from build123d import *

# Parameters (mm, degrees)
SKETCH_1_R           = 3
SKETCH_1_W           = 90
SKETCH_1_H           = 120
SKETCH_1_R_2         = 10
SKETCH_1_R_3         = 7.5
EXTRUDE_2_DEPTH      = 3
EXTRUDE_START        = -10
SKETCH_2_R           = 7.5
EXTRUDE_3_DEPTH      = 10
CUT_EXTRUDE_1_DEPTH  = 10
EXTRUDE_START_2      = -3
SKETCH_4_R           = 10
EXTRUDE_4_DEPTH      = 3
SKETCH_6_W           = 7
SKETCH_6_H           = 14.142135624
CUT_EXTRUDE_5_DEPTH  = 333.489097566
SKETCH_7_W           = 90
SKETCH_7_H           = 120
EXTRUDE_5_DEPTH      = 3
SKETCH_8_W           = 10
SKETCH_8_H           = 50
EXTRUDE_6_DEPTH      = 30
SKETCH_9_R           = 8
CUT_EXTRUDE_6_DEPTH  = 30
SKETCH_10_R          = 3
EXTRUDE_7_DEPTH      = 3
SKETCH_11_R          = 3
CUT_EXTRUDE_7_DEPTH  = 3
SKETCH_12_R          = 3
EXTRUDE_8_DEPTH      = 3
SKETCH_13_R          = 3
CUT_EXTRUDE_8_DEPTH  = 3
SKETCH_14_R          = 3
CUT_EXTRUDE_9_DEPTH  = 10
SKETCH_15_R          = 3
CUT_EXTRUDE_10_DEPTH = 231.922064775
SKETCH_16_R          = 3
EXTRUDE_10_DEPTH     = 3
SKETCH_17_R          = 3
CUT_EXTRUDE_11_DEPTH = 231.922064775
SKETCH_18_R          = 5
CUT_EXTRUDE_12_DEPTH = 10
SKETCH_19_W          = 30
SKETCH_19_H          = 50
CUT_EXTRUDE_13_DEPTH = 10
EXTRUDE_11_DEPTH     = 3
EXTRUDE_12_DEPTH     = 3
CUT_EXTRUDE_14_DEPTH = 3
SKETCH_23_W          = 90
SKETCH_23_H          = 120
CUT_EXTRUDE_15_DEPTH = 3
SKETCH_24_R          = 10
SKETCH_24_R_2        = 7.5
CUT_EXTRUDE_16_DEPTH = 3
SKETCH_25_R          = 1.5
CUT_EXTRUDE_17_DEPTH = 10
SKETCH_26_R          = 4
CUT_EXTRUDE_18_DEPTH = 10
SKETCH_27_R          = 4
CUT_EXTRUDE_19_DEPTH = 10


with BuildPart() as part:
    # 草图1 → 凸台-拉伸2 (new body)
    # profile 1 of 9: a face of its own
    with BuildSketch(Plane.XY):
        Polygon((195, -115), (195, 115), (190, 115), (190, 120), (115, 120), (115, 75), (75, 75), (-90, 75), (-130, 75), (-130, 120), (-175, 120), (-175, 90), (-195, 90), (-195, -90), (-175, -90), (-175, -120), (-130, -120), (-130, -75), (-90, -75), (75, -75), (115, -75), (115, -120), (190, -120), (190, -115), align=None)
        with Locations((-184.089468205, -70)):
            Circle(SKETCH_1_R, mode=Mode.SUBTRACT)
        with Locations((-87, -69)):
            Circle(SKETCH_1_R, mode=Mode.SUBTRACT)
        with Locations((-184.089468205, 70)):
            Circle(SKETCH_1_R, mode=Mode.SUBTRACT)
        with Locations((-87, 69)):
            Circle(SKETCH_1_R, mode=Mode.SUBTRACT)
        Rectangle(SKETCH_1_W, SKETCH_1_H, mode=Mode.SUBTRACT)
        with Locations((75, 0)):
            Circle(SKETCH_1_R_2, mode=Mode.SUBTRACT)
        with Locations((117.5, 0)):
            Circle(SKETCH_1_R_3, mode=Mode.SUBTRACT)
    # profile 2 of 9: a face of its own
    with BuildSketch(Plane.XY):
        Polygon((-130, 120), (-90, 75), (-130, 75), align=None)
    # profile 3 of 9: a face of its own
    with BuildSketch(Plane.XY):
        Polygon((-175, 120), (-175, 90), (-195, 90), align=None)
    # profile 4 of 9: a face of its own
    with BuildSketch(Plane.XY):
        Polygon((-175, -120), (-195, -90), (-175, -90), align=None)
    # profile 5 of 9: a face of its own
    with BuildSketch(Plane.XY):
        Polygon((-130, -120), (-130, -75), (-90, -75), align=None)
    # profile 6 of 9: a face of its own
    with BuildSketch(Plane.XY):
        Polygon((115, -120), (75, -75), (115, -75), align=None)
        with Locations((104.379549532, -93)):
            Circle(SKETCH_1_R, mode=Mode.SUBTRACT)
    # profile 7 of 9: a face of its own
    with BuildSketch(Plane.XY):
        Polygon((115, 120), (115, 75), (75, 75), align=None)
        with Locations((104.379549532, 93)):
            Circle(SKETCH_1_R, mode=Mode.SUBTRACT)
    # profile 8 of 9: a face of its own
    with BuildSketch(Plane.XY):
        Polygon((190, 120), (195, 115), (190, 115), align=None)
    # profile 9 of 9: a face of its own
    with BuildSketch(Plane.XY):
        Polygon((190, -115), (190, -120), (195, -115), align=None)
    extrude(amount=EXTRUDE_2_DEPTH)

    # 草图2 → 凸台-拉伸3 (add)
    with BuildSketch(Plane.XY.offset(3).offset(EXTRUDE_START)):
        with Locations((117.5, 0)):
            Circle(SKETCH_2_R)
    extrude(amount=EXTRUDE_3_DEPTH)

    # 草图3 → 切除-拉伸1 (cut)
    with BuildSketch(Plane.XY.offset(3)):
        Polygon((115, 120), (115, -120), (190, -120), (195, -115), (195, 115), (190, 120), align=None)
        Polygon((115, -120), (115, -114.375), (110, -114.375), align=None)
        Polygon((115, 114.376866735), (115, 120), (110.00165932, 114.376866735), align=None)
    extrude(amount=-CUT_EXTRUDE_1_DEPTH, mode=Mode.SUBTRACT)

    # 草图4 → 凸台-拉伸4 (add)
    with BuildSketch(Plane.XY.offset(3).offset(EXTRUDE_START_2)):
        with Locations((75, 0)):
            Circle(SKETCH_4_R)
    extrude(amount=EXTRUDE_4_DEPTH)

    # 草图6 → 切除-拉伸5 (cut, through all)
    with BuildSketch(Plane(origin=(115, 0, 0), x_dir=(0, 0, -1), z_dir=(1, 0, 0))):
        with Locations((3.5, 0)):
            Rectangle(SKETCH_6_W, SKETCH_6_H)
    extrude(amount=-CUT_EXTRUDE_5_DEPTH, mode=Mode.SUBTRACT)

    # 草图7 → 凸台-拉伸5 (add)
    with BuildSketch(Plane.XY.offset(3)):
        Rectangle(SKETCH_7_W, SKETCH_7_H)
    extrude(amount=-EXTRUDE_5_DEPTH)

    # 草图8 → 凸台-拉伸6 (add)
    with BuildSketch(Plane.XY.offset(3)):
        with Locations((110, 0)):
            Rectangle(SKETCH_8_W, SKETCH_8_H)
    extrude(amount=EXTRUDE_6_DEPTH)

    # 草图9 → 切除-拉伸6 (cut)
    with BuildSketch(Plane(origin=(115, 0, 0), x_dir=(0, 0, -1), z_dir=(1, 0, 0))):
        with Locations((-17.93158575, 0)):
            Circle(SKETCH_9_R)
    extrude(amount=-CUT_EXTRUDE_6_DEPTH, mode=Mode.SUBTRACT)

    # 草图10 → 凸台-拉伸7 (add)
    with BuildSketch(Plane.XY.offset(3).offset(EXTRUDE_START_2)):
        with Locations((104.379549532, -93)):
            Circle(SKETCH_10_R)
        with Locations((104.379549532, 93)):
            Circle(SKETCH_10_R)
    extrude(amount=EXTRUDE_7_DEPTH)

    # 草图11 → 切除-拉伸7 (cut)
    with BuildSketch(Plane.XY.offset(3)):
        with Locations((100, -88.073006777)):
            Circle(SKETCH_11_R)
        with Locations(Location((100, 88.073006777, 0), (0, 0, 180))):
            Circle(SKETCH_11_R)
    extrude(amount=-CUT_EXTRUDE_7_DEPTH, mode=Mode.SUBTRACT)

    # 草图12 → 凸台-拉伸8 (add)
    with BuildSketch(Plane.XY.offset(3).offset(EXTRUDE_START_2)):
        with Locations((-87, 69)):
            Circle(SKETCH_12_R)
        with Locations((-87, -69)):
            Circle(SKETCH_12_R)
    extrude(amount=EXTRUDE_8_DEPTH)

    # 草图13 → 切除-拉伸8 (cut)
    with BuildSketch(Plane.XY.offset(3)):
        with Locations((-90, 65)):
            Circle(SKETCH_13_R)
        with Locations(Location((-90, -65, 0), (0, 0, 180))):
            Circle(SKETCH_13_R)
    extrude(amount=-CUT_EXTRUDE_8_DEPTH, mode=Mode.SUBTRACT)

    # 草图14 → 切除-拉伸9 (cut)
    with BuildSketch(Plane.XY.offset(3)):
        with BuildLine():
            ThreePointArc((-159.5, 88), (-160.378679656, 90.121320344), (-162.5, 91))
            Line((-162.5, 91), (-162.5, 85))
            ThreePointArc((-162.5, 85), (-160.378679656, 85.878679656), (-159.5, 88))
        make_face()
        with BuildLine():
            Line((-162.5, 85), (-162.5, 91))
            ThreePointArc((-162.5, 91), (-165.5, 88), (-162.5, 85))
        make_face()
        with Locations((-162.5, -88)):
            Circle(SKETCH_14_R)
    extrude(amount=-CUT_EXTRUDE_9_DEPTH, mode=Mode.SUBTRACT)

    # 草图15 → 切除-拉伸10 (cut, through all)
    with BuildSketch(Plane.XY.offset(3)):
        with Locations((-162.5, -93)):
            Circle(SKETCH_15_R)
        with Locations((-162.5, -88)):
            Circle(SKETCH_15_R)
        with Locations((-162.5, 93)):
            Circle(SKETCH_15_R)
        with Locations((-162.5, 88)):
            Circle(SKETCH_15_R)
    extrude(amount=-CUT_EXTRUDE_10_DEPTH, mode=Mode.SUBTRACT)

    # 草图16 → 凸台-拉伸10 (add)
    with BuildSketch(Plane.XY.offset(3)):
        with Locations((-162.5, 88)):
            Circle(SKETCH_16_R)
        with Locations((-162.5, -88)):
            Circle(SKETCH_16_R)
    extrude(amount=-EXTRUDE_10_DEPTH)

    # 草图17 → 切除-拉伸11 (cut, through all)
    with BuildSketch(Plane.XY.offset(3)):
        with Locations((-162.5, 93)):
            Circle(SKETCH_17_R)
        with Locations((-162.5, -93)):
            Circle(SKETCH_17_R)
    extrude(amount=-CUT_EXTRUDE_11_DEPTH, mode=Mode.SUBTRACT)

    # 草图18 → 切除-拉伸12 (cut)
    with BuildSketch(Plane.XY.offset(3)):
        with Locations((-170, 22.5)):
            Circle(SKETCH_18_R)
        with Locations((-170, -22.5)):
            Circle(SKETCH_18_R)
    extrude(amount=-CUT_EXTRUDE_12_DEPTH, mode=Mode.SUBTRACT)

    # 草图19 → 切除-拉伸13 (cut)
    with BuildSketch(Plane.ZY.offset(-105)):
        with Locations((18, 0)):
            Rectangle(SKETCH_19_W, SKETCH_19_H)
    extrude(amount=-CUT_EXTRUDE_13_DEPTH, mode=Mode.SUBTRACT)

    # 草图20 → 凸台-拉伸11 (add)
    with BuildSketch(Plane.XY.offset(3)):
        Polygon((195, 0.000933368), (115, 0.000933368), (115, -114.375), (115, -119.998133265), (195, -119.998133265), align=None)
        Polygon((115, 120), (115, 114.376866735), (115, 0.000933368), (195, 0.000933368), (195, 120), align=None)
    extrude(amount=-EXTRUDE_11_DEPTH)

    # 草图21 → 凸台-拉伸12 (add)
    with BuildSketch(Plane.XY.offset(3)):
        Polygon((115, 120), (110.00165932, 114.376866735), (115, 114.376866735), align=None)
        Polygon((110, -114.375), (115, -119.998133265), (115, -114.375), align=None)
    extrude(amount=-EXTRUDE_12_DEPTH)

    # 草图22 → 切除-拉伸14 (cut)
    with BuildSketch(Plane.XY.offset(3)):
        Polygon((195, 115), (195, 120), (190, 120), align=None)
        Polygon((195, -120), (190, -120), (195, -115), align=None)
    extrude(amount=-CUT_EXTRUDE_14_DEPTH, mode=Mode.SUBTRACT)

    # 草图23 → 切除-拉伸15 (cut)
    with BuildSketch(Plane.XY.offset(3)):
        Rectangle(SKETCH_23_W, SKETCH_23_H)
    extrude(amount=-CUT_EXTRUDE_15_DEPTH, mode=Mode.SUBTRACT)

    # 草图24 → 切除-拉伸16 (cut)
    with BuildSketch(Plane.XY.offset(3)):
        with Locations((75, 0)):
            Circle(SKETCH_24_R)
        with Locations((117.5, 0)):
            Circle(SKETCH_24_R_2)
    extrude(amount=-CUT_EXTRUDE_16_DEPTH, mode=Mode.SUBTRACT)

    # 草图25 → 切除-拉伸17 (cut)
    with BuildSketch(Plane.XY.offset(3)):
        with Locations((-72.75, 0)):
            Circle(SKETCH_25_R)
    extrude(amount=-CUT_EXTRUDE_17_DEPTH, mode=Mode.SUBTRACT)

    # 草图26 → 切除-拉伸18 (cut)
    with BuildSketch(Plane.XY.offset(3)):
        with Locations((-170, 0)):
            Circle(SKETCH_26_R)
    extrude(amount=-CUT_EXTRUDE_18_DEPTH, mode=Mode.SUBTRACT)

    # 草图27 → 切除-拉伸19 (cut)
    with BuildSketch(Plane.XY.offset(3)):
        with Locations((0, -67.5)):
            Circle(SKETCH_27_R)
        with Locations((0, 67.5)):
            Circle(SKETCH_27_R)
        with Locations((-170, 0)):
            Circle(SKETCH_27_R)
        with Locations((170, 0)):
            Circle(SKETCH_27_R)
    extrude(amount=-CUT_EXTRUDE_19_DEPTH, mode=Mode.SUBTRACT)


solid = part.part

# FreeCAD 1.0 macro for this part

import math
import FreeCAD as App
import Part
import Sketcher
from FreeCAD import Vector
Q = App.Units.Quantity

doc = App.newDocument("Part")
body = doc.addObject("PartDesign::Body", "Body")

# Sketch on XY plane
sketch1 = doc.addObject("Sketcher::SketchObject", "Sketch")
body.addObject(sketch1)
sketch1.AttachmentSupport = (doc.XY_Plane, [""])
sketch1.MapMode = "FlatFace"
sketch1.addGeometry([
    Part.LineSegment(Vector(195, -115, 0), Vector(195, 115, 0)),  # 0
    Part.LineSegment(Vector(195, 115, 0), Vector(190, 120, 0)),  # 1
    Part.LineSegment(Vector(190, 120, 0), Vector(115, 120, 0)),  # 2
    Part.LineSegment(Vector(115, 120, 0), Vector(75, 75, 0)),  # 3
    Part.LineSegment(Vector(75, 75, 0), Vector(-90, 75, 0)),  # 4
    Part.LineSegment(Vector(-90, 75, 0), Vector(-130, 120, 0)),  # 5
    Part.LineSegment(Vector(-130, 120, 0), Vector(-175, 120, 0)),  # 6
    Part.LineSegment(Vector(-175, 120, 0), Vector(-195, 90, 0)),  # 7
    Part.LineSegment(Vector(-195, 90, 0), Vector(-195, -90, 0)),  # 8
    Part.LineSegment(Vector(-195, -90, 0), Vector(-175, -120, 0)),  # 9
    Part.LineSegment(Vector(-175, -120, 0), Vector(-130, -120, 0)),  # 10
    Part.LineSegment(Vector(-130, -120, 0), Vector(-90, -75, 0)),  # 11
    Part.LineSegment(Vector(-90, -75, 0), Vector(75, -75, 0)),  # 12
    Part.LineSegment(Vector(75, -75, 0), Vector(115, -120, 0)),  # 13
    Part.LineSegment(Vector(115, -120, 0), Vector(190, -120, 0)),  # 14
    Part.LineSegment(Vector(190, -120, 0), Vector(195, -115, 0)),  # 15
    Part.Circle(Vector(-184.089468, -70, 0), Vector(0, 0, 1), 3),  # 16
    Part.Circle(Vector(-87, -69, 0), Vector(0, 0, 1), 3),  # 17
    Part.Circle(Vector(-184.089468, 70, 0), Vector(0, 0, 1), 3),  # 18
    Part.Circle(Vector(-87, 69, 0), Vector(0, 0, 1), 3),  # 19
    Part.LineSegment(Vector(45, -60, 0), Vector(-45, -60, 0)),  # 20
    Part.LineSegment(Vector(-45, -60, 0), Vector(-45, 60, 0)),  # 21
    Part.LineSegment(Vector(-45, 60, 0), Vector(45, 60, 0)),  # 22
    Part.LineSegment(Vector(45, 60, 0), Vector(45, -60, 0)),  # 23
    Part.Circle(Vector(75, 0, 0), Vector(0, 0, 1), 10),  # 24
    Part.Circle(Vector(117.5, 0, 0), Vector(0, 0, 1), 7.5),  # 25
    Part.Circle(Vector(104.37955, -93, 0), Vector(0, 0, 1), 3),  # 26
    Part.Circle(Vector(104.37955, 93, 0), Vector(0, 0, 1), 3),  # 27
], False)
sketch1.addConstraint([
    Sketcher.Constraint("Coincident", 0, 2, 1, 1),
    Sketcher.Constraint("Coincident", 1, 2, 2, 1),
    Sketcher.Constraint("Coincident", 2, 2, 3, 1),
    Sketcher.Constraint("Coincident", 3, 2, 4, 1),
    Sketcher.Constraint("Coincident", 4, 2, 5, 1),
    Sketcher.Constraint("Coincident", 5, 2, 6, 1),
    Sketcher.Constraint("Coincident", 6, 2, 7, 1),
    Sketcher.Constraint("Coincident", 7, 2, 8, 1),
    Sketcher.Constraint("Coincident", 8, 2, 9, 1),
    Sketcher.Constraint("Coincident", 9, 2, 10, 1),
    Sketcher.Constraint("Coincident", 10, 2, 11, 1),
    Sketcher.Constraint("Coincident", 11, 2, 12, 1),
    Sketcher.Constraint("Coincident", 12, 2, 13, 1),
    Sketcher.Constraint("Coincident", 13, 2, 14, 1),
    Sketcher.Constraint("Coincident", 14, 2, 15, 1),
    Sketcher.Constraint("Coincident", 15, 2, 0, 1),
    Sketcher.Constraint("Coincident", 20, 2, 21, 1),
    Sketcher.Constraint("Coincident", 21, 2, 22, 1),
    Sketcher.Constraint("Coincident", 22, 2, 23, 1),
    Sketcher.Constraint("Coincident", 23, 2, 20, 1),
    Sketcher.Constraint("Vertical", 0),
    Sketcher.Constraint("Horizontal", 2),
    Sketcher.Constraint("Horizontal", 4),
    Sketcher.Constraint("Horizontal", 6),
    Sketcher.Constraint("Vertical", 8),
    Sketcher.Constraint("Horizontal", 10),
    Sketcher.Constraint("Horizontal", 12),
    Sketcher.Constraint("Horizontal", 14),
    Sketcher.Constraint("Horizontal", 20),
    Sketcher.Constraint("Vertical", 21),
    Sketcher.Constraint("Horizontal", 22),
    Sketcher.Constraint("Vertical", 23),
    Sketcher.Constraint("Equal", 16, 17),
    Sketcher.Constraint("Equal", 17, 18),
    Sketcher.Constraint("Equal", 18, 19),
    Sketcher.Constraint("Equal", 19, 26),
    Sketcher.Constraint("Equal", 26, 27),
    Sketcher.Constraint("Symmetric", 20, 2, 22, 2, -1, 1),
    Sketcher.Constraint("Symmetric", 16, 3, 18, 3, -1),
    Sketcher.Constraint("Symmetric", 17, 3, 19, 3, -1),
    Sketcher.Constraint("Symmetric", 26, 3, 27, 3, -1),
    Sketcher.Constraint("Symmetric", 6, 2, 9, 2, -1),
    Sketcher.Constraint("Symmetric", 4, 2, 11, 2, -1),
    Sketcher.Constraint("Symmetric", 2, 2, 13, 2, -1),
    Sketcher.Constraint("PointOnObject", 24, 3, -1),
    Sketcher.Constraint("PointOnObject", 25, 3, -1),
    Sketcher.Constraint("Parallel", 3, 11),
    Sketcher.Constraint("Parallel", 5, 13),
    Sketcher.Constraint("Perpendicular", 1, 15),
    Sketcher.Constraint("Horizontal", 2, 2, 5, 2),
    Sketcher.Constraint("Vertical", 24, 3, 3, 2),
    Sketcher.Constraint("Vertical", 5, 2, 10, 2),
    Sketcher.Constraint("Vertical", 1, 2, 14, 2),
    Sketcher.Constraint("Equal", 7, 9),
    Sketcher.Constraint("Equal", 1, 15),
    Sketcher.Constraint("Diameter", 16, Q("6 mm")),
    Sketcher.Constraint("Diameter", 24, Q("20 mm")),
    Sketcher.Constraint("Diameter", 25, Q("15 mm")),
    Sketcher.Constraint("DistanceX", 2, 2, 2, 1, Q("75 mm")),
    Sketcher.Constraint("DistanceX", 4, 2, 4, 1, Q("165 mm")),
    Sketcher.Constraint("DistanceX", 6, 2, 6, 1, Q("45 mm")),
    Sketcher.Constraint("DistanceX", 20, 2, 20, 1, Q("90 mm")),
    Sketcher.Constraint("DistanceY", 0, 1, 0, 2, Q("230 mm")),
    Sketcher.Constraint("DistanceY", 8, 2, 8, 1, Q("180 mm")),
    Sketcher.Constraint("DistanceY", 21, 1, 21, 2, Q("120 mm")),
    Sketcher.Constraint("DistanceY", 16, 3, -1, 1, Q("70 mm")),
    Sketcher.Constraint("DistanceX", 17, 3, -1, 1, Q("87 mm")),
    Sketcher.Constraint("DistanceY", 17, 3, -1, 1, Q("69 mm")),
    Sketcher.Constraint("DistanceX", -1, 1, 24, 3, Q("75 mm")),
    Sketcher.Constraint("DistanceY", 26, 3, -1, 1, Q("93 mm")),
    Sketcher.Constraint("DistanceX", -1, 1, 0, 2, Q("195 mm")),
    Sketcher.Constraint("DistanceX", -1, 1, 1, 2, Q("190 mm")),
    Sketcher.Constraint("DistanceY", -1, 1, 3, 2, Q("75 mm")),
    Sketcher.Constraint("DistanceX", 7, 2, -1, 1, Q("195 mm")),
    Sketcher.Constraint("DistanceX", -1, 1, 25, 3, Q("117.5 mm")),
    Sketcher.Constraint("DistanceX", 16, 3, -1, 1, Q("184.089468 mm")),
    Sketcher.Constraint("DistanceX", -1, 1, 26, 3, Q("104.37955 mm")),
])
pad1 = doc.addObject("PartDesign::Pad", "Pad")
body.addObject(pad1)
pad1.Profile = sketch1
pad1.Length = 3

# Sketch on XY plane
sketch2 = doc.addObject("Sketcher::SketchObject", "Sketch001")
body.addObject(sketch2)
sketch2.AttachmentSupport = (doc.XY_Plane, [""])
sketch2.MapMode = "FlatFace"
sketch2.AttachmentOffset = App.Placement(Vector(0, 0, -7), App.Rotation())
sketch2.addGeometry(Part.Circle(Vector(117.5, 0, 0), Vector(0, 0, 1), 7.5), False)
sketch2.addConstraint([
    Sketcher.Constraint("PointOnObject", 0, 3, -1),
    Sketcher.Constraint("Diameter", 0, Q("15 mm")),
    Sketcher.Constraint("DistanceX", -1, 1, 0, 3, Q("117.5 mm")),
])
pad2 = doc.addObject("PartDesign::Pad", "Pad001")
body.addObject(pad2)
pad2.Profile = sketch2
pad2.Length = 10

# Sketch on XY plane
sketch3 = doc.addObject("Sketcher::SketchObject", "Sketch002")
body.addObject(sketch3)
sketch3.AttachmentSupport = (doc.XY_Plane, [""])
sketch3.MapMode = "FlatFace"
sketch3.AttachmentOffset = App.Placement(Vector(0, 0, 3), App.Rotation())
sketch3.addGeometry([
    Part.LineSegment(Vector(115, 114.376867, 0), Vector(115, -114.375, 0)),  # 0
    Part.LineSegment(Vector(115, -114.375, 0), Vector(110, -114.375, 0)),  # 1
    Part.LineSegment(Vector(110, -114.375, 0), Vector(115, -120, 0)),  # 2
    Part.LineSegment(Vector(115, -120, 0), Vector(190, -120, 0)),  # 3
    Part.LineSegment(Vector(190, -120, 0), Vector(195, -115, 0)),  # 4
    Part.LineSegment(Vector(195, -115, 0), Vector(195, 115, 0)),  # 5
    Part.LineSegment(Vector(195, 115, 0), Vector(190, 120, 0)),  # 6
    Part.LineSegment(Vector(190, 120, 0), Vector(115, 120, 0)),  # 7
    Part.LineSegment(Vector(115, 120, 0), Vector(110.001659, 114.376867, 0)),  # 8
    Part.LineSegment(Vector(110.001659, 114.376867, 0), Vector(115, 114.376867, 0)),  # 9
], False)
sketch3.addConstraint([
    Sketcher.Constraint("Coincident", 0, 2, 1, 1),
    Sketcher.Constraint("Coincident", 1, 2, 2, 1),
    Sketcher.Constraint("Coincident", 2, 2, 3, 1),
    Sketcher.Constraint("Coincident", 3, 2, 4, 1),
    Sketcher.Constraint("Coincident", 4, 2, 5, 1),
    Sketcher.Constraint("Coincident", 5, 2, 6, 1),
    Sketcher.Constraint("Coincident", 6, 2, 7, 1),
    Sketcher.Constraint("Coincident", 7, 2, 8, 1),
    Sketcher.Constraint("Coincident", 8, 2, 9, 1),
    Sketcher.Constraint("Coincident", 9, 2, 0, 1),
    Sketcher.Constraint("Vertical", 0),
    Sketcher.Constraint("Horizontal", 1),
    Sketcher.Constraint("Horizontal", 3),
    Sketcher.Constraint("Vertical", 5),
    Sketcher.Constraint("Horizontal", 7),
    Sketcher.Constraint("Horizontal", 9),
    Sketcher.Constraint("Symmetric", 3, 2, 6, 2, -1),
    Sketcher.Constraint("Perpendicular", 4, 6),
    Sketcher.Constraint("Vertical", 0, 2, 2, 2),
    Sketcher.Constraint("Vertical", 2, 2, 7, 2),
    Sketcher.Constraint("Equal", 4, 6),
    Sketcher.Constraint("DistanceX", 1, 2, 1, 1, Q("5 mm")),
    Sketcher.Constraint("DistanceX", 3, 1, 3, 2, Q("75 mm")),
    Sketcher.Constraint("DistanceY", 5, 1, 5, 2, Q("230 mm")),
    Sketcher.Constraint("DistanceX", -1, 1, 0, 2, Q("115 mm")),
    Sketcher.Constraint("DistanceY", 2, 2, -1, 1, Q("120 mm")),
    Sketcher.Constraint("DistanceY", 0, 2, -1, 1, Q("114.375 mm")),
    Sketcher.Constraint("Distance", 8, Q("7.523499 mm")),
    Sketcher.Constraint("DistanceX", 9, 1, 9, 2, Q("4.998341 mm")),
])
pocket1 = doc.addObject("PartDesign::Pocket", "Pocket")
body.addObject(pocket1)
pocket1.Profile = sketch3
pocket1.Length = 10

# Sketch on XY plane
sketch4 = doc.addObject("Sketcher::SketchObject", "Sketch003")
body.addObject(sketch4)
sketch4.AttachmentSupport = (doc.XY_Plane, [""])
sketch4.MapMode = "FlatFace"
sketch4.addGeometry(Part.Circle(Vector(75, 0, 0), Vector(0, 0, 1), 10), False)
sketch4.addConstraint([
    Sketcher.Constraint("PointOnObject", 0, 3, -1),
    Sketcher.Constraint("Diameter", 0, Q("20 mm")),
    Sketcher.Constraint("DistanceX", -1, 1, 0, 3, Q("75 mm")),
])
pad3 = doc.addObject("PartDesign::Pad", "Pad002")
body.addObject(pad3)
pad3.Profile = sketch4
pad3.Length = 3

# Sketch on YZ plane
sketch5 = doc.addObject("Sketcher::SketchObject", "Sketch004")
body.addObject(sketch5)
sketch5.AttachmentSupport = (doc.YZ_Plane, [""])
sketch5.MapMode = "FlatFace"
sketch5.AttachmentOffset = App.Placement(Vector(0, 0, 115), App.Rotation())
sketch5.addGeometry([
    Part.LineSegment(Vector(7.071068, 0, 0), Vector(-7.071068, 0, 0)),
    Part.LineSegment(Vector(-7.071068, 0, 0), Vector(-7.071068, -7, 0)),
    Part.LineSegment(Vector(-7.071068, -7, 0), Vector(7.071068, -7, 0)),
    Part.LineSegment(Vector(7.071068, -7, 0), Vector(7.071068, 0, 0)),
], False)
sketch5.addConstraint([
    Sketcher.Constraint("Coincident", 0, 2, 1, 1),
    Sketcher.Constraint("Coincident", 1, 2, 2, 1),
    Sketcher.Constraint("Coincident", 2, 2, 3, 1),
    Sketcher.Constraint("Coincident", 3, 2, 0, 1),
    Sketcher.Constraint("Horizontal", 0),
    Sketcher.Constraint("Vertical", 1),
    Sketcher.Constraint("Horizontal", 2),
    Sketcher.Constraint("Vertical", 3),
    Sketcher.Constraint("Symmetric", 0, 2, 3, 2, -1, 1),
    Sketcher.Constraint("DistanceY", 1, 2, 1, 1, Q("7 mm")),
    Sketcher.Constraint("DistanceX", 0, 2, 0, 1, Q("14.142136 mm")),
])
pocket2 = doc.addObject("PartDesign::Pocket", "Pocket001")
body.addObject(pocket2)
pocket2.Profile = sketch5
pocket2.Type = "ThroughAll"

# Sketch on XY plane
sketch6 = doc.addObject("Sketcher::SketchObject", "Sketch005")
body.addObject(sketch6)
sketch6.AttachmentSupport = (doc.XY_Plane, [""])
sketch6.MapMode = "FlatFace"
sketch6.AttachmentOffset = App.Placement(Vector(0, 0, 3), App.Rotation())
sketch6.addGeometry([
    Part.LineSegment(Vector(-45, 60, 0), Vector(-45, -60, 0)),
    Part.LineSegment(Vector(-45, -60, 0), Vector(45, -60, 0)),
    Part.LineSegment(Vector(45, -60, 0), Vector(45, 60, 0)),
    Part.LineSegment(Vector(45, 60, 0), Vector(-45, 60, 0)),
], False)
sketch6.addConstraint([
    Sketcher.Constraint("Coincident", 0, 2, 1, 1),
    Sketcher.Constraint("Coincident", 1, 2, 2, 1),
    Sketcher.Constraint("Coincident", 2, 2, 3, 1),
    Sketcher.Constraint("Coincident", 3, 2, 0, 1),
    Sketcher.Constraint("Vertical", 0),
    Sketcher.Constraint("Horizontal", 1),
    Sketcher.Constraint("Vertical", 2),
    Sketcher.Constraint("Horizontal", 3),
    Sketcher.Constraint("Symmetric", 0, 2, 2, 2, -1, 1),
    Sketcher.Constraint("DistanceX", 1, 1, 1, 2, Q("90 mm")),
    Sketcher.Constraint("DistanceY", 0, 2, 0, 1, Q("120 mm")),
])
pad4 = doc.addObject("PartDesign::Pad", "Pad003")
body.addObject(pad4)
pad4.Profile = sketch6
pad4.Length = 3
pad4.Reversed = True

# Sketch on XY plane
sketch7 = doc.addObject("Sketcher::SketchObject", "Sketch006")
body.addObject(sketch7)
sketch7.AttachmentSupport = (doc.XY_Plane, [""])
sketch7.MapMode = "FlatFace"
sketch7.AttachmentOffset = App.Placement(Vector(0, 0, 3), App.Rotation())
sketch7.addGeometry([
    Part.LineSegment(Vector(105, 25, 0), Vector(105, -25, 0)),
    Part.LineSegment(Vector(105, -25, 0), Vector(115, -25, 0)),
    Part.LineSegment(Vector(115, -25, 0), Vector(115, 25, 0)),
    Part.LineSegment(Vector(115, 25, 0), Vector(105, 25, 0)),
], False)
sketch7.addConstraint([
    Sketcher.Constraint("Coincident", 0, 2, 1, 1),
    Sketcher.Constraint("Coincident", 1, 2, 2, 1),
    Sketcher.Constraint("Coincident", 2, 2, 3, 1),
    Sketcher.Constraint("Coincident", 3, 2, 0, 1),
    Sketcher.Constraint("Vertical", 0),
    Sketcher.Constraint("Horizontal", 1),
    Sketcher.Constraint("Vertical", 2),
    Sketcher.Constraint("Horizontal", 3),
    Sketcher.Constraint("DistanceX", 1, 1, 1, 2, Q("10 mm")),
    Sketcher.Constraint("DistanceY", 0, 2, 0, 1, Q("50 mm")),
    Sketcher.Constraint("DistanceX", -1, 1, 0, 2, Q("105 mm")),
    Sketcher.Constraint("DistanceY", 0, 2, -1, 1, Q("25 mm")),
])
pad5 = doc.addObject("PartDesign::Pad", "Pad004")
body.addObject(pad5)
pad5.Profile = sketch7
pad5.Length = 30

# Sketch on YZ plane
sketch8 = doc.addObject("Sketcher::SketchObject", "Sketch007")
body.addObject(sketch8)
sketch8.AttachmentSupport = (doc.YZ_Plane, [""])
sketch8.MapMode = "FlatFace"
sketch8.AttachmentOffset = App.Placement(Vector(0, 0, 115), App.Rotation())
sketch8.addGeometry(Part.Circle(Vector(0, 17.931586, 0), Vector(0, 0, 1), 8), False)
sketch8.addConstraint([
    Sketcher.Constraint("PointOnObject", 0, 3, -2),
    Sketcher.Constraint("Diameter", 0, Q("16 mm")),
    Sketcher.Constraint("DistanceY", -1, 1, 0, 3, Q("17.931586 mm")),
])
pocket3 = doc.addObject("PartDesign::Pocket", "Pocket002")
body.addObject(pocket3)
pocket3.Profile = sketch8
pocket3.Length = 30

# Sketch on XY plane
sketch9 = doc.addObject("Sketcher::SketchObject", "Sketch008")
body.addObject(sketch9)
sketch9.AttachmentSupport = (doc.XY_Plane, [""])
sketch9.MapMode = "FlatFace"
sketch9.addGeometry([
    Part.Circle(Vector(104.37955, -93, 0), Vector(0, 0, 1), 3),
    Part.Circle(Vector(104.37955, 93, 0), Vector(0, 0, 1), 3),
], False)
sketch9.addConstraint([
    Sketcher.Constraint("Equal", 0, 1),
    Sketcher.Constraint("Symmetric", 0, 3, 1, 3, -1),
    Sketcher.Constraint("Diameter", 0, Q("6 mm")),
    Sketcher.Constraint("DistanceY", 0, 3, -1, 1, Q("93 mm")),
    Sketcher.Constraint("DistanceX", -1, 1, 0, 3, Q("104.37955 mm")),
])
pad6 = doc.addObject("PartDesign::Pad", "Pad005")
body.addObject(pad6)
pad6.Profile = sketch9
pad6.Length = 3

# Sketch on XY plane
sketch10 = doc.addObject("Sketcher::SketchObject", "Sketch009")
body.addObject(sketch10)
sketch10.AttachmentSupport = (doc.XY_Plane, [""])
sketch10.MapMode = "FlatFace"
sketch10.AttachmentOffset = App.Placement(Vector(0, 0, 3), App.Rotation())
sketch10.addGeometry([
    Part.Circle(Vector(100, -88.073007, 0), Vector(0, 0, 1), 3),
    Part.Circle(Vector(100, 88.073007, 0), Vector(0, 0, 1), 3),
], False)
sketch10.addConstraint([
    Sketcher.Constraint("Equal", 0, 1),
    Sketcher.Constraint("Symmetric", 0, 3, 1, 3, -1),
    Sketcher.Constraint("Diameter", 0, Q("6 mm")),
    Sketcher.Constraint("DistanceX", -1, 1, 0, 3, Q("100 mm")),
    Sketcher.Constraint("DistanceY", 0, 3, -1, 1, Q("88.073007 mm")),
])
pocket4 = doc.addObject("PartDesign::Pocket", "Pocket003")
body.addObject(pocket4)
pocket4.Profile = sketch10
pocket4.Length = 3

# Sketch on XY plane
sketch11 = doc.addObject("Sketcher::SketchObject", "Sketch010")
body.addObject(sketch11)
sketch11.AttachmentSupport = (doc.XY_Plane, [""])
sketch11.MapMode = "FlatFace"
sketch11.addGeometry([
    Part.Circle(Vector(-87, 69, 0), Vector(0, 0, 1), 3),
    Part.Circle(Vector(-87, -69, 0), Vector(0, 0, 1), 3),
], False)
sketch11.addConstraint([
    Sketcher.Constraint("Equal", 0, 1),
    Sketcher.Constraint("Symmetric", 0, 3, 1, 3, -1),
    Sketcher.Constraint("Diameter", 0, Q("6 mm")),
    Sketcher.Constraint("DistanceX", 0, 3, -1, 1, Q("87 mm")),
    Sketcher.Constraint("DistanceY", -1, 1, 0, 3, Q("69 mm")),
])
pad7 = doc.addObject("PartDesign::Pad", "Pad006")
body.addObject(pad7)
pad7.Profile = sketch11
pad7.Length = 3

# Sketch on XY plane
sketch12 = doc.addObject("Sketcher::SketchObject", "Sketch011")
body.addObject(sketch12)
sketch12.AttachmentSupport = (doc.XY_Plane, [""])
sketch12.MapMode = "FlatFace"
sketch12.AttachmentOffset = App.Placement(Vector(0, 0, 3), App.Rotation())
sketch12.addGeometry([
    Part.Circle(Vector(-90, 65, 0), Vector(0, 0, 1), 3),
    Part.Circle(Vector(-90, -65, 0), Vector(0, 0, 1), 3),
], False)
sketch12.addConstraint([
    Sketcher.Constraint("Equal", 0, 1),
    Sketcher.Constraint("Symmetric", 0, 3, 1, 3, -1),
    Sketcher.Constraint("Diameter", 0, Q("6 mm")),
    Sketcher.Constraint("DistanceX", 0, 3, -1, 1, Q("90 mm")),
    Sketcher.Constraint("DistanceY", -1, 1, 0, 3, Q("65 mm")),
])
pocket5 = doc.addObject("PartDesign::Pocket", "Pocket004")
body.addObject(pocket5)
pocket5.Profile = sketch12
pocket5.Length = 3

# Sketch on XY plane
sketch13 = doc.addObject("Sketcher::SketchObject", "Sketch012")
body.addObject(sketch13)
sketch13.AttachmentSupport = (doc.XY_Plane, [""])
sketch13.MapMode = "FlatFace"
sketch13.AttachmentOffset = App.Placement(Vector(0, 0, 3), App.Rotation())
sketch13.addGeometry([
    Part.ArcOfCircle(Part.Circle(Vector(-162.5, 88, 0), Vector(0, 0, 1), 3), math.radians(0), math.radians(90)),
    Part.ArcOfCircle(Part.Circle(Vector(-162.5, 88, 0), Vector(0, 0, 1), 3), math.radians(90), math.radians(270)),
    Part.ArcOfCircle(Part.Circle(Vector(-162.5, 88, 0), Vector(0, 0, 1), 3), math.radians(-90), math.radians(0)),
    Part.Circle(Vector(-162.5, -88, 0), Vector(0, 0, 1), 3),
], False)
sketch13.addConstraint([
    Sketcher.Constraint("Tangent", 0, 2, 1, 1),
    Sketcher.Constraint("Tangent", 1, 2, 2, 1),
    Sketcher.Constraint("Tangent", 2, 2, 0, 1),
    Sketcher.Constraint("Equal", 2, 3),
    Sketcher.Constraint("Symmetric", 0, 3, 3, 3, -1),
    Sketcher.Constraint("Horizontal", 1, 3, 2, 2),
    Sketcher.Constraint("Vertical", 3, 3, 0, 2),
    Sketcher.Constraint("Vertical", 0, 2, 1, 2),
    Sketcher.Constraint("Diameter", 3, Q("6 mm")),
    Sketcher.Constraint("DistanceY", -1, 1, 0, 3, Q("88 mm")),
    Sketcher.Constraint("DistanceX", 0, 3, -1, 1, Q("162.5 mm")),
])
pocket6 = doc.addObject("PartDesign::Pocket", "Pocket005")
body.addObject(pocket6)
pocket6.Profile = sketch13
pocket6.Length = 10

# Sketch on XY plane
sketch14 = doc.addObject("Sketcher::SketchObject", "Sketch013")
body.addObject(sketch14)
sketch14.AttachmentSupport = (doc.XY_Plane, [""])
sketch14.MapMode = "FlatFace"
sketch14.AttachmentOffset = App.Placement(Vector(0, 0, 3), App.Rotation())
sketch14.addGeometry([
    Part.ArcOfCircle(Part.Circle(Vector(-162.5, -93, 0), Vector(0, 0, 1), 3), math.radians(123.55731), math.radians(416.44269)),
    Part.ArcOfCircle(Part.Circle(Vector(-162.5, -88, 0), Vector(0, 0, 1), 3), math.radians(-56.44269), math.radians(236.44269)),
    Part.ArcOfCircle(Part.Circle(Vector(-162.5, 93, 0), Vector(0, 0, 1), 3), math.radians(-56.44269), math.radians(236.44269)),
    Part.ArcOfCircle(Part.Circle(Vector(-162.5, 88, 0), Vector(0, 0, 1), 3), math.radians(123.55731), math.radians(416.44269)),
], False)
sketch14.addConstraint([
    Sketcher.Constraint("Coincident", 0, 1, 1, 2),
    Sketcher.Constraint("Coincident", 1, 1, 0, 2),
    Sketcher.Constraint("Coincident", 2, 1, 3, 2),
    Sketcher.Constraint("Coincident", 3, 1, 2, 2),
    Sketcher.Constraint("Equal", 0, 1),
    Sketcher.Constraint("Equal", 1, 2),
    Sketcher.Constraint("Equal", 2, 3),
    Sketcher.Constraint("Symmetric", 0, 3, 2, 3, -1),
    Sketcher.Constraint("Symmetric", 1, 3, 3, 3, -1),
    Sketcher.Constraint("Horizontal", 0, 1, 1, 1),
    Sketcher.Constraint("Radius", 0, Q("3 mm")),
    Sketcher.Constraint("DistanceY", 0, 3, -1, 1, Q("93 mm")),
    Sketcher.Constraint("DistanceY", 1, 3, -1, 1, Q("88 mm")),
    Sketcher.Constraint("DistanceX", 0, 3, -1, 1, Q("162.5 mm")),
])
pocket7 = doc.addObject("PartDesign::Pocket", "Pocket006")
body.addObject(pocket7)
pocket7.Profile = sketch14
pocket7.Type = "ThroughAll"

# Sketch on XY plane
sketch15 = doc.addObject("Sketcher::SketchObject", "Sketch014")
body.addObject(sketch15)
sketch15.AttachmentSupport = (doc.XY_Plane, [""])
sketch15.MapMode = "FlatFace"
sketch15.AttachmentOffset = App.Placement(Vector(0, 0, 3), App.Rotation())
sketch15.addGeometry([
    Part.Circle(Vector(-162.5, 88, 0), Vector(0, 0, 1), 3),
    Part.Circle(Vector(-162.5, -88, 0), Vector(0, 0, 1), 3),
], False)
sketch15.addConstraint([
    Sketcher.Constraint("Equal", 0, 1),
    Sketcher.Constraint("Symmetric", 0, 3, 1, 3, -1),
    Sketcher.Constraint("Diameter", 0, Q("6 mm")),
    Sketcher.Constraint("DistanceY", -1, 1, 0, 3, Q("88 mm")),
    Sketcher.Constraint("DistanceX", 0, 3, -1, 1, Q("162.5 mm")),
])
pad8 = doc.addObject("PartDesign::Pad", "Pad007")
body.addObject(pad8)
pad8.Profile = sketch15
pad8.Length = 3
pad8.Reversed = True

# Sketch on XY plane
sketch16 = doc.addObject("Sketcher::SketchObject", "Sketch015")
body.addObject(sketch16)
sketch16.AttachmentSupport = (doc.XY_Plane, [""])
sketch16.MapMode = "FlatFace"
sketch16.AttachmentOffset = App.Placement(Vector(0, 0, 3), App.Rotation())
sketch16.addGeometry([
    Part.Circle(Vector(-162.5, 93, 0), Vector(0, 0, 1), 3),
    Part.Circle(Vector(-162.5, -93, 0), Vector(0, 0, 1), 3),
], False)
sketch16.addConstraint([
    Sketcher.Constraint("Equal", 0, 1),
    Sketcher.Constraint("Symmetric", 0, 3, 1, 3, -1),
    Sketcher.Constraint("Diameter", 0, Q("6 mm")),
    Sketcher.Constraint("DistanceY", -1, 1, 0, 3, Q("93 mm")),
    Sketcher.Constraint("DistanceX", 0, 3, -1, 1, Q("162.5 mm")),
])
pocket8 = doc.addObject("PartDesign::Pocket", "Pocket007")
body.addObject(pocket8)
pocket8.Profile = sketch16
pocket8.Type = "ThroughAll"

# Sketch on XY plane
sketch17 = doc.addObject("Sketcher::SketchObject", "Sketch016")
body.addObject(sketch17)
sketch17.AttachmentSupport = (doc.XY_Plane, [""])
sketch17.MapMode = "FlatFace"
sketch17.AttachmentOffset = App.Placement(Vector(0, 0, 3), App.Rotation())
sketch17.addGeometry([
    Part.Circle(Vector(-170, 22.5, 0), Vector(0, 0, 1), 5),
    Part.Circle(Vector(-170, -22.5, 0), Vector(0, 0, 1), 5),
], False)
sketch17.addConstraint([
    Sketcher.Constraint("Equal", 0, 1),
    Sketcher.Constraint("Symmetric", 0, 3, 1, 3, -1),
    Sketcher.Constraint("Diameter", 0, Q("10 mm")),
    Sketcher.Constraint("DistanceX", 0, 3, -1, 1, Q("170 mm")),
    Sketcher.Constraint("DistanceY", 1, 3, 0, 3, Q("45 mm")),
])
pocket9 = doc.addObject("PartDesign::Pocket", "Pocket008")
body.addObject(pocket9)
pocket9.Profile = sketch17
pocket9.Length = 10

# Sketch on YZ plane
sketch18 = doc.addObject("Sketcher::SketchObject", "Sketch017")
body.addObject(sketch18)
sketch18.AttachmentSupport = (doc.YZ_Plane, [""])
sketch18.MapMode = "FlatFace"
sketch18.AttachmentOffset = App.Placement(Vector(0, 0, 105), App.Rotation())
sketch18.addGeometry([
    Part.LineSegment(Vector(25, 3, 0), Vector(-25, 3, 0)),
    Part.LineSegment(Vector(-25, 3, 0), Vector(-25, 33, 0)),
    Part.LineSegment(Vector(-25, 33, 0), Vector(25, 33, 0)),
    Part.LineSegment(Vector(25, 33, 0), Vector(25, 3, 0)),
], False)
sketch18.addConstraint([
    Sketcher.Constraint("Coincident", 0, 2, 1, 1),
    Sketcher.Constraint("Coincident", 1, 2, 2, 1),
    Sketcher.Constraint("Coincident", 2, 2, 3, 1),
    Sketcher.Constraint("Coincident", 3, 2, 0, 1),
    Sketcher.Constraint("Horizontal", 0),
    Sketcher.Constraint("Vertical", 1),
    Sketcher.Constraint("Horizontal", 2),
    Sketcher.Constraint("Vertical", 3),
    Sketcher.Constraint("DistanceX", 0, 2, 0, 1, Q("50 mm")),
    Sketcher.Constraint("DistanceY", 1, 1, 1, 2, Q("30 mm")),
    Sketcher.Constraint("DistanceX", 0, 2, -1, 1, Q("25 mm")),
    Sketcher.Constraint("DistanceY", -1, 1, 0, 2, Q("3 mm")),
])
pocket10 = doc.addObject("PartDesign::Pocket", "Pocket009")
body.addObject(pocket10)
pocket10.Profile = sketch18
pocket10.Length = 10
pocket10.Reversed = True

# Sketch on XY plane
sketch19 = doc.addObject("Sketcher::SketchObject", "Sketch018")
body.addObject(sketch19)
sketch19.AttachmentSupport = (doc.XY_Plane, [""])
sketch19.MapMode = "FlatFace"
sketch19.AttachmentOffset = App.Placement(Vector(0, 0, 3), App.Rotation())
sketch19.addGeometry([
    Part.LineSegment(Vector(115, -119.998133, 0), Vector(195, -119.998133, 0)),
    Part.LineSegment(Vector(195, -119.998133, 0), Vector(195, 120, 0)),
    Part.LineSegment(Vector(195, 120, 0), Vector(115, 120, 0)),
    Part.LineSegment(Vector(115, 120, 0), Vector(115, -119.998133, 0)),
], False)
sketch19.addConstraint([
    Sketcher.Constraint("Coincident", 0, 2, 1, 1),
    Sketcher.Constraint("Coincident", 1, 2, 2, 1),
    Sketcher.Constraint("Coincident", 2, 2, 3, 1),
    Sketcher.Constraint("Coincident", 3, 2, 0, 1),
    Sketcher.Constraint("Horizontal", 0),
    Sketcher.Constraint("Vertical", 1),
    Sketcher.Constraint("Horizontal", 2),
    Sketcher.Constraint("Vertical", 3),
    Sketcher.Constraint("DistanceX", 0, 1, 0, 2, Q("80 mm")),
    Sketcher.Constraint("DistanceX", -1, 1, 0, 2, Q("195 mm")),
    Sketcher.Constraint("DistanceY", -1, 1, 1, 2, Q("120 mm")),
    Sketcher.Constraint("DistanceY", 1, 1, 1, 2, Q("239.998133 mm")),
])
pad9 = doc.addObject("PartDesign::Pad", "Pad008")
body.addObject(pad9)
pad9.Profile = sketch19
pad9.Length = 3
pad9.Reversed = True

# Sketch on XY plane
sketch20 = doc.addObject("Sketcher::SketchObject", "Sketch019")
body.addObject(sketch20)
sketch20.AttachmentSupport = (doc.XY_Plane, [""])
sketch20.MapMode = "FlatFace"
sketch20.AttachmentOffset = App.Placement(Vector(0, 0, 3), App.Rotation())
sketch20.addGeometry([
    Part.LineSegment(Vector(115, 120, 0), Vector(110.001659, 114.376867, 0)),  # 0
    Part.LineSegment(Vector(110.001659, 114.376867, 0), Vector(115, 114.376867, 0)),  # 1
    Part.LineSegment(Vector(115, 114.376867, 0), Vector(115, 120, 0)),  # 2
    Part.LineSegment(Vector(110, -114.375, 0), Vector(115, -119.998133, 0)),  # 3
    Part.LineSegment(Vector(115, -119.998133, 0), Vector(115, -114.375, 0)),  # 4
    Part.LineSegment(Vector(115, -114.375, 0), Vector(110, -114.375, 0)),  # 5
], False)
sketch20.addConstraint([
    Sketcher.Constraint("Coincident", 0, 2, 1, 1),
    Sketcher.Constraint("Coincident", 1, 2, 2, 1),
    Sketcher.Constraint("Coincident", 2, 2, 0, 1),
    Sketcher.Constraint("Coincident", 3, 2, 4, 1),
    Sketcher.Constraint("Coincident", 4, 2, 5, 1),
    Sketcher.Constraint("Coincident", 5, 2, 3, 1),
    Sketcher.Constraint("Horizontal", 1),
    Sketcher.Constraint("Vertical", 2),
    Sketcher.Constraint("Vertical", 4),
    Sketcher.Constraint("Horizontal", 5),
    Sketcher.Constraint("Vertical", 2, 2, 3, 2),
    Sketcher.Constraint("Equal", 2, 4),
    Sketcher.Constraint("DistanceX", 5, 2, 5, 1, Q("5 mm")),
    Sketcher.Constraint("DistanceX", -1, 1, 1, 2, Q("115 mm")),
    Sketcher.Constraint("DistanceY", -1, 1, 2, 2, Q("120 mm")),
    Sketcher.Constraint("DistanceY", 4, 2, -1, 1, Q("114.375 mm")),
    Sketcher.Constraint("Distance", 0, Q("7.523499 mm")),
    Sketcher.Constraint("Distance", 3, Q("7.524601 mm")),
])
pad10 = doc.addObject("PartDesign::Pad", "Pad009")
body.addObject(pad10)
pad10.Profile = sketch20
pad10.Length = 3
pad10.Reversed = True

# Sketch on XY plane
sketch21 = doc.addObject("Sketcher::SketchObject", "Sketch020")
body.addObject(sketch21)
sketch21.AttachmentSupport = (doc.XY_Plane, [""])
sketch21.MapMode = "FlatFace"
sketch21.AttachmentOffset = App.Placement(Vector(0, 0, 3), App.Rotation())
sketch21.addGeometry([
    Part.LineSegment(Vector(195, 115, 0), Vector(195, 120, 0)),  # 0
    Part.LineSegment(Vector(195, 120, 0), Vector(190, 120, 0)),  # 1
    Part.LineSegment(Vector(190, 120, 0), Vector(195, 115, 0)),  # 2
    Part.LineSegment(Vector(190, -120, 0), Vector(195, -120, 0)),  # 3
    Part.LineSegment(Vector(195, -120, 0), Vector(195, -115, 0)),  # 4
    Part.LineSegment(Vector(195, -115, 0), Vector(190, -120, 0)),  # 5
], False)
sketch21.addConstraint([
    Sketcher.Constraint("Coincident", 0, 2, 1, 1),
    Sketcher.Constraint("Coincident", 1, 2, 2, 1),
    Sketcher.Constraint("Coincident", 2, 2, 0, 1),
    Sketcher.Constraint("Coincident", 3, 2, 4, 1),
    Sketcher.Constraint("Coincident", 4, 2, 5, 1),
    Sketcher.Constraint("Coincident", 5, 2, 3, 1),
    Sketcher.Constraint("Vertical", 0),
    Sketcher.Constraint("Horizontal", 1),
    Sketcher.Constraint("Horizontal", 3),
    Sketcher.Constraint("Vertical", 4),
    Sketcher.Constraint("Symmetric", 0, 2, 3, 2, -1),
    Sketcher.Constraint("Perpendicular", 2, 5),
    Sketcher.Constraint("Vertical", 1, 2, 5, 2),
    Sketcher.Constraint("Equal", 3, 0),
    Sketcher.Constraint("DistanceX", 1, 2, 1, 1, Q("5 mm")),
    Sketcher.Constraint("DistanceX", -1, 1, 0, 2, Q("195 mm")),
    Sketcher.Constraint("DistanceY", -1, 1, 0, 2, Q("120 mm")),
])
pocket11 = doc.addObject("PartDesign::Pocket", "Pocket010")
body.addObject(pocket11)
pocket11.Profile = sketch21
pocket11.Length = 3

# Sketch on XY plane
sketch22 = doc.addObject("Sketcher::SketchObject", "Sketch021")
body.addObject(sketch22)
sketch22.AttachmentSupport = (doc.XY_Plane, [""])
sketch22.MapMode = "FlatFace"
sketch22.AttachmentOffset = App.Placement(Vector(0, 0, 3), App.Rotation())
sketch22.addGeometry([
    Part.LineSegment(Vector(-45, 60, 0), Vector(-45, -60, 0)),
    Part.LineSegment(Vector(-45, -60, 0), Vector(45, -60, 0)),
    Part.LineSegment(Vector(45, -60, 0), Vector(45, 60, 0)),
    Part.LineSegment(Vector(45, 60, 0), Vector(-45, 60, 0)),
], False)
sketch22.addConstraint([
    Sketcher.Constraint("Coincident", 0, 2, 1, 1),
    Sketcher.Constraint("Coincident", 1, 2, 2, 1),
    Sketcher.Constraint("Coincident", 2, 2, 3, 1),
    Sketcher.Constraint("Coincident", 3, 2, 0, 1),
    Sketcher.Constraint("Vertical", 0),
    Sketcher.Constraint("Horizontal", 1),
    Sketcher.Constraint("Vertical", 2),
    Sketcher.Constraint("Horizontal", 3),
    Sketcher.Constraint("Symmetric", 0, 2, 2, 2, -1, 1),
    Sketcher.Constraint("DistanceX", 1, 1, 1, 2, Q("90 mm")),
    Sketcher.Constraint("DistanceY", 0, 2, 0, 1, Q("120 mm")),
])
pocket12 = doc.addObject("PartDesign::Pocket", "Pocket011")
body.addObject(pocket12)
pocket12.Profile = sketch22
pocket12.Length = 3

# Sketch on XY plane
sketch23 = doc.addObject("Sketcher::SketchObject", "Sketch022")
body.addObject(sketch23)
sketch23.AttachmentSupport = (doc.XY_Plane, [""])
sketch23.MapMode = "FlatFace"
sketch23.AttachmentOffset = App.Placement(Vector(0, 0, 3), App.Rotation())
sketch23.addGeometry([
    Part.Circle(Vector(75, 0, 0), Vector(0, 0, 1), 10),
    Part.Circle(Vector(117.5, 0, 0), Vector(0, 0, 1), 7.5),
], False)
sketch23.addConstraint([
    Sketcher.Constraint("PointOnObject", 0, 3, -1),
    Sketcher.Constraint("PointOnObject", 1, 3, -1),
    Sketcher.Constraint("Diameter", 0, Q("20 mm")),
    Sketcher.Constraint("Diameter", 1, Q("15 mm")),
    Sketcher.Constraint("DistanceX", -1, 1, 0, 3, Q("75 mm")),
    Sketcher.Constraint("DistanceX", -1, 1, 1, 3, Q("117.5 mm")),
])
pocket13 = doc.addObject("PartDesign::Pocket", "Pocket012")
body.addObject(pocket13)
pocket13.Profile = sketch23
pocket13.Length = 3

# Sketch on XY plane
sketch24 = doc.addObject("Sketcher::SketchObject", "Sketch023")
body.addObject(sketch24)
sketch24.AttachmentSupport = (doc.XY_Plane, [""])
sketch24.MapMode = "FlatFace"
sketch24.AttachmentOffset = App.Placement(Vector(0, 0, 3), App.Rotation())
sketch24.addGeometry(Part.Circle(Vector(-72.75, 0, 0), Vector(0, 0, 1), 1.5), False)
sketch24.addConstraint([
    Sketcher.Constraint("PointOnObject", 0, 3, -1),
    Sketcher.Constraint("Diameter", 0, Q("3 mm")),
    Sketcher.Constraint("DistanceX", 0, 3, -1, 1, Q("72.75 mm")),
])
pocket14 = doc.addObject("PartDesign::Pocket", "Pocket013")
body.addObject(pocket14)
pocket14.Profile = sketch24
pocket14.Length = 10

# Sketch on XY plane
sketch25 = doc.addObject("Sketcher::SketchObject", "Sketch024")
body.addObject(sketch25)
sketch25.AttachmentSupport = (doc.XY_Plane, [""])
sketch25.MapMode = "FlatFace"
sketch25.AttachmentOffset = App.Placement(Vector(0, 0, 3), App.Rotation())
sketch25.addGeometry(Part.Circle(Vector(-170, 0, 0), Vector(0, 0, 1), 4), False)
sketch25.addConstraint([
    Sketcher.Constraint("PointOnObject", 0, 3, -1),
    Sketcher.Constraint("Diameter", 0, Q("8 mm")),
    Sketcher.Constraint("DistanceX", 0, 3, -1, 1, Q("170 mm")),
])
pocket15 = doc.addObject("PartDesign::Pocket", "Pocket014")
body.addObject(pocket15)
pocket15.Profile = sketch25
pocket15.Length = 10

# Sketch on XY plane
sketch26 = doc.addObject("Sketcher::SketchObject", "Sketch025")
body.addObject(sketch26)
sketch26.AttachmentSupport = (doc.XY_Plane, [""])
sketch26.MapMode = "FlatFace"
sketch26.AttachmentOffset = App.Placement(Vector(0, 0, 3), App.Rotation())
sketch26.addGeometry([
    Part.Circle(Vector(0, -67.5, 0), Vector(0, 0, 1), 4),
    Part.Circle(Vector(0, 67.5, 0), Vector(0, 0, 1), 4),
    Part.Circle(Vector(-170, 0, 0), Vector(0, 0, 1), 4),
    Part.Circle(Vector(170, 0, 0), Vector(0, 0, 1), 4),
], False)
sketch26.addConstraint([
    Sketcher.Constraint("Equal", 0, 1),
    Sketcher.Constraint("Equal", 1, 2),
    Sketcher.Constraint("Equal", 2, 3),
    Sketcher.Constraint("Symmetric", 0, 3, 1, 3, -1, 1),
    Sketcher.Constraint("Symmetric", 2, 3, 3, 3, -1, 1),
    Sketcher.Constraint("PointOnObject", 0, 3, -2),
    Sketcher.Constraint("PointOnObject", 2, 3, -1),
    Sketcher.Constraint("Diameter", 0, Q("8 mm")),
    Sketcher.Constraint("DistanceX", 2, 3, -1, 1, Q("170 mm")),
    Sketcher.Constraint("DistanceY", 0, 3, 1, 3, Q("135 mm")),
])
pocket16 = doc.addObject("PartDesign::Pocket", "Pocket015")
body.addObject(pocket16)
pocket16.Profile = sketch26
pocket16.Length = 10

doc.recompute()
